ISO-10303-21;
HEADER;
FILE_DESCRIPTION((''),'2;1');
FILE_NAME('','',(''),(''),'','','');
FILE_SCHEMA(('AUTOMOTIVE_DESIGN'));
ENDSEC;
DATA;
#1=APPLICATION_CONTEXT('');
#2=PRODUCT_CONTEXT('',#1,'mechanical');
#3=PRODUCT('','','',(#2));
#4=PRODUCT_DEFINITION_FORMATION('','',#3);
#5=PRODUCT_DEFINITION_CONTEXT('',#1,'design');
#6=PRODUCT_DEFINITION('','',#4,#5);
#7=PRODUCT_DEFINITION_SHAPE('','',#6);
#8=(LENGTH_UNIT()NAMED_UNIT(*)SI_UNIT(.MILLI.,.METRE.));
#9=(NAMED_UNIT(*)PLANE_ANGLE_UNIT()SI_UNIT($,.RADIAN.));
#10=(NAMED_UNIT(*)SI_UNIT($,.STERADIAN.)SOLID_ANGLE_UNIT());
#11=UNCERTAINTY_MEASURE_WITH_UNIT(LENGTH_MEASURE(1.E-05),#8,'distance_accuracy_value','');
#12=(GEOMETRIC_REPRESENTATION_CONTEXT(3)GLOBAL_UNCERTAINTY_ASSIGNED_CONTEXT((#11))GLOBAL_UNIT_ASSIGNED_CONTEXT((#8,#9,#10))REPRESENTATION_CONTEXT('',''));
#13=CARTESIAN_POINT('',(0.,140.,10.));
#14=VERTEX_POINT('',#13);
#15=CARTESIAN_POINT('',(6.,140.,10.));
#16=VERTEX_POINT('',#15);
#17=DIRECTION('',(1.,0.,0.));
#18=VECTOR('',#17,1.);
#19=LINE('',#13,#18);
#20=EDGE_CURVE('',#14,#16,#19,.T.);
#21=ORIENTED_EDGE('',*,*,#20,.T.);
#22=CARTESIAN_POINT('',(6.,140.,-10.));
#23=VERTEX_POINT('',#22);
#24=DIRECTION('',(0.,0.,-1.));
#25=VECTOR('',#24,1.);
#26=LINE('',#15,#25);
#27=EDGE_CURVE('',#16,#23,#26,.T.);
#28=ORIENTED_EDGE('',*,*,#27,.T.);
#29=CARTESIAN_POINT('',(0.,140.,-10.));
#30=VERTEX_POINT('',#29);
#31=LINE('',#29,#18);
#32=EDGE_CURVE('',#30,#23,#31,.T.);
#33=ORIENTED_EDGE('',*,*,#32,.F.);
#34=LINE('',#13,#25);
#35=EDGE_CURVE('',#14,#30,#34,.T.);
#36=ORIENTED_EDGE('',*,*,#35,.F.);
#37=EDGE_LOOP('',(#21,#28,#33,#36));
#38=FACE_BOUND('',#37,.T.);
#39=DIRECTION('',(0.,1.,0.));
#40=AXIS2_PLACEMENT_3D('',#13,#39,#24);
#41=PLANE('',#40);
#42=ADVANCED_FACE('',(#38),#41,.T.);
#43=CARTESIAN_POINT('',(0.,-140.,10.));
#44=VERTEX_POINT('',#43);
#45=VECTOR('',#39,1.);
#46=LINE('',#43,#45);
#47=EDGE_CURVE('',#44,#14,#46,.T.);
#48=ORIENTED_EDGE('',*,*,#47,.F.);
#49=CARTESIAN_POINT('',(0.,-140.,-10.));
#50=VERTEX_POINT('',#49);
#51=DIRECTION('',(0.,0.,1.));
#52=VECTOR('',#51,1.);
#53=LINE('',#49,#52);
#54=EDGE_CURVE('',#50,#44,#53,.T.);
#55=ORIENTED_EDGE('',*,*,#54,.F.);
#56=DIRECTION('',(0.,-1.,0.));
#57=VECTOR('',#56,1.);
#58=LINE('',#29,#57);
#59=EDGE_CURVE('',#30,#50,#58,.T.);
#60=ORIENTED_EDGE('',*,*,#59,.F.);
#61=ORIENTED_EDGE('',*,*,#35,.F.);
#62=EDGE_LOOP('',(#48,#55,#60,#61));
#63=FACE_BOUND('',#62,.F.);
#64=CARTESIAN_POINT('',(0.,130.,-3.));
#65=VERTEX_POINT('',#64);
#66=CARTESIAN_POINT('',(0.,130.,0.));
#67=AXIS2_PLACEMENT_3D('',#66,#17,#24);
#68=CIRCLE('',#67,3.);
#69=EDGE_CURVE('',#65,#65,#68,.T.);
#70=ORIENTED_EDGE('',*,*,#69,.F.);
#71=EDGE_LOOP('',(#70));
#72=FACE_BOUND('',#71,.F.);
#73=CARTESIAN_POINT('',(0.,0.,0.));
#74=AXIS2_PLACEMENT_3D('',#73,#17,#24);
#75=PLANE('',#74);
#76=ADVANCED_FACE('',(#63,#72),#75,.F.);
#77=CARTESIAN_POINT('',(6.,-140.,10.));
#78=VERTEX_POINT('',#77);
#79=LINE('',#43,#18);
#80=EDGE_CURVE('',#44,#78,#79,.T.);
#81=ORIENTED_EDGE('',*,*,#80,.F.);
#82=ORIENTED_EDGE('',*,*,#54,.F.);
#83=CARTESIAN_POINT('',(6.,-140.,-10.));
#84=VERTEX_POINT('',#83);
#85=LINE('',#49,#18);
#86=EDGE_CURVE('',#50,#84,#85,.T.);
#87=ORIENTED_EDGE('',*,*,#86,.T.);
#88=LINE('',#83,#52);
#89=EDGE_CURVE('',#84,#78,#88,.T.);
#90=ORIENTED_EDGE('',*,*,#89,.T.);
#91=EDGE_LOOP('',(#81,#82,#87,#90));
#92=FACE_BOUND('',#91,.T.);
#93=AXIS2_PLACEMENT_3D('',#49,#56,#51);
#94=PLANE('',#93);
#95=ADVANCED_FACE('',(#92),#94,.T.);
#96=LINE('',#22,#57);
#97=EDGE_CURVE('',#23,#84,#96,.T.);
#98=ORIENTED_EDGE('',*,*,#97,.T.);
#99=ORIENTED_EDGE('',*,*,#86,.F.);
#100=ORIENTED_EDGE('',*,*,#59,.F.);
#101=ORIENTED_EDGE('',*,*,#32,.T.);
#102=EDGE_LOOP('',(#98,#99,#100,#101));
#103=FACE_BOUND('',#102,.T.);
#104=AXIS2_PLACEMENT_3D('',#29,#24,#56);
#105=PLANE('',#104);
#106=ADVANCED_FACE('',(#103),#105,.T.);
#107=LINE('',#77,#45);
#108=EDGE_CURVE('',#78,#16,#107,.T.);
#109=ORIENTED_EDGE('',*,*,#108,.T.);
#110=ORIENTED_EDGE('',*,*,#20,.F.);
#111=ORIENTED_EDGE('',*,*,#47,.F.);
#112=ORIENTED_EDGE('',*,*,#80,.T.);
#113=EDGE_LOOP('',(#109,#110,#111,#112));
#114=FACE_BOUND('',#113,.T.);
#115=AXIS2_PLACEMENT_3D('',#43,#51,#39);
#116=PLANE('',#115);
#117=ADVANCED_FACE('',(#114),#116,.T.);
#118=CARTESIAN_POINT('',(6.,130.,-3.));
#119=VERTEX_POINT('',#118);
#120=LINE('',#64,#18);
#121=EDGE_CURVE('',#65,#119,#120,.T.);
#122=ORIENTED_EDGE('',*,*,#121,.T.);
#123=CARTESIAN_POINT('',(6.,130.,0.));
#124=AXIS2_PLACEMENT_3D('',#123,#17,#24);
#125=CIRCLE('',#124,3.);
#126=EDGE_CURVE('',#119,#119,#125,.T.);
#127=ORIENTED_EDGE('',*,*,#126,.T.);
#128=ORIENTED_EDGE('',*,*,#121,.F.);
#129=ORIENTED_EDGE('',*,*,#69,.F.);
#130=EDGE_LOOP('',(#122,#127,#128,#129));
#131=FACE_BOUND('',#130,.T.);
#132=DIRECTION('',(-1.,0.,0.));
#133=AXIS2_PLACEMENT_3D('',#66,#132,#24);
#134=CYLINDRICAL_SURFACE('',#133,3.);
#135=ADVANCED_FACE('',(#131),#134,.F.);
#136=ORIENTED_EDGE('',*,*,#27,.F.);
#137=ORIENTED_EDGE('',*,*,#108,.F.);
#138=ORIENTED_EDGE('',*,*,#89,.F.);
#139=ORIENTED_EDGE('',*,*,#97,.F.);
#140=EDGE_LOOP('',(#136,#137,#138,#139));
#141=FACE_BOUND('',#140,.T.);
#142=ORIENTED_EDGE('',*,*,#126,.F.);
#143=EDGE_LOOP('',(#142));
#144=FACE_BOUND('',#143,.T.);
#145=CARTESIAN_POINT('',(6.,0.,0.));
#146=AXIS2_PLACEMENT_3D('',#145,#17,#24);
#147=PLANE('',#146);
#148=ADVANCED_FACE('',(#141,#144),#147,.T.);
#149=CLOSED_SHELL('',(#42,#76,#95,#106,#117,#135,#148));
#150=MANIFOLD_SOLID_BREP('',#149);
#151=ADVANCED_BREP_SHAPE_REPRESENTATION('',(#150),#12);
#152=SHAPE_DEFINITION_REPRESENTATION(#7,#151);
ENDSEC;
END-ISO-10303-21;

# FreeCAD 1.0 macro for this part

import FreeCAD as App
import Part
import Sketcher
Q = App.Units.Quantity

doc = App.newDocument("Part")
body = doc.addObject("PartDesign::Body", "Body")

sketch1 = body.newObject("Sketcher::SketchObject", "Sketch")
sketch1.AttachmentSupport = (doc.getObject("YZ_Plane"), [""])
sketch1.MapMode = "FlatFace"
sketch1.addGeometry(Part.LineSegment(App.Vector(140, -10, 0), App.Vector(140, 10, 0)), False)
sketch1.addGeometry(Part.LineSegment(App.Vector(140, 10, 0), App.Vector(-140, 10, 0)), False)
sketch1.addGeometry(Part.LineSegment(App.Vector(-140, 10, 0), App.Vector(-140, -10, 0)), False)
sketch1.addGeometry(Part.LineSegment(App.Vector(-140, -10, 0), App.Vector(140, -10, 0)), False)
sketch1.addGeometry(Part.Circle(App.Vector(130, 0, 0), App.Vector(0, 0, 1), 3), False)
sketch1.addConstraint(Sketcher.Constraint("Coincident", 0, 2, 1, 1))
sketch1.addConstraint(Sketcher.Constraint("Coincident", 1, 2, 2, 1))
sketch1.addConstraint(Sketcher.Constraint("Coincident", 2, 2, 3, 1))
sketch1.addConstraint(Sketcher.Constraint("Coincident", 3, 2, 0, 1))
sketch1.addConstraint(Sketcher.Constraint("Vertical", 0))
sketch1.addConstraint(Sketcher.Constraint("Horizontal", 1))
sketch1.addConstraint(Sketcher.Constraint("Vertical", 2))
sketch1.addConstraint(Sketcher.Constraint("Horizontal", 3))
sketch1.addConstraint(Sketcher.Constraint("Symmetric", 0, 2, 2, 2, -1, 1))
sketch1.addConstraint(Sketcher.Constraint("PointOnObject", 4, 3, -1))
sketch1.addConstraint(Sketcher.Constraint("Diameter", 4, Q("6 mm")))
sketch1.addConstraint(Sketcher.Constraint("DistanceX", 1, 2, 1, 1, Q("280 mm")))
sketch1.addConstraint(Sketcher.Constraint("DistanceY", 0, 1, 0, 2, Q("20 mm")))
sketch1.addConstraint(Sketcher.Constraint("DistanceX", 4, 3, 0, 2, Q("10 mm")))
pad1 = body.newObject("PartDesign::Pad", "Pad")
pad1.Profile = sketch1
pad1.Length = 6

doc.recompute()
